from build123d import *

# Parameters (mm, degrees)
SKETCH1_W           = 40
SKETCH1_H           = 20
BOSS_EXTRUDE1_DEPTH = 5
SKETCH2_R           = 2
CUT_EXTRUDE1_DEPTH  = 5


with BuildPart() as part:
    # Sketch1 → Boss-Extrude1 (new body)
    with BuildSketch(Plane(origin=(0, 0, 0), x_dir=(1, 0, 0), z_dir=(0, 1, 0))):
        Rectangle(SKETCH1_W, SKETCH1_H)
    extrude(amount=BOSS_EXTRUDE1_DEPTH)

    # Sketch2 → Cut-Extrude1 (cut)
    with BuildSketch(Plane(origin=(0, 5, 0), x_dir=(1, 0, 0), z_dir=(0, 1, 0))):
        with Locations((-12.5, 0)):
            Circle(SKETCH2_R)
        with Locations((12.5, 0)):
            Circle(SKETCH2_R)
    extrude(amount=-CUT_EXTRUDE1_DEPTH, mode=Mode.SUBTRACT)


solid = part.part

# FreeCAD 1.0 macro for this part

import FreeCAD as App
import Part
import Sketcher

doc = App.newDocument("Part")
body = doc.addObject("PartDesign::Body", "Body")

sketch1 = doc.addObject("Sketcher::SketchObject", "Sketch")
body.addObject(sketch1)
sketch1.AttachmentSupport = (doc.XZ_Plane, [""])
sketch1.MapMode = "FlatFace"
sketch1.addGeometry(Part.LineSegment(App.Vector(-20, -10, 0), App.Vector(-20, 10, 0)), False)
sketch1.addGeometry(Part.LineSegment(App.Vector(-20, 10, 0), App.Vector(20, 10, 0)), False)
sketch1.addGeometry(Part.LineSegment(App.Vector(20, 10, 0), App.Vector(20, -10, 0)), False)
sketch1.addGeometry(Part.LineSegment(App.Vector(20, -10, 0), App.Vector(-20, -10, 0)), False)
sketch1.addConstraint(Sketcher.Constraint("Coincident", 0, 2, 1, 1))
sketch1.addConstraint(Sketcher.Constraint("Coincident", 1, 2, 2, 1))
sketch1.addConstraint(Sketcher.Constraint("Coincident", 2, 2, 3, 1))
sketch1.addConstraint(Sketcher.Constraint("Coincident", 3, 2, 0, 1))
sketch1.addConstraint(Sketcher.Constraint("Vertical", 0))
sketch1.addConstraint(Sketcher.Constraint("Horizontal", 1))
sketch1.addConstraint(Sketcher.Constraint("Vertical", 2))
sketch1.addConstraint(Sketcher.Constraint("Horizontal", 3))
sketch1.addConstraint(Sketcher.Constraint("Symmetric", 0, 2, 2, 2, -1, 1))
sketch1.addConstraint(Sketcher.Constraint("DistanceX", 1, 1, 1, 2, 40.0))
sketch1.addConstraint(Sketcher.Constraint("DistanceY", 0, 1, 0, 2, 20.0))
pad1 = doc.addObject("PartDesign::Pad", "Pad")
body.addObject(pad1)
pad1.Profile = sketch1
pad1.Length = 5
pad1.Reversed = True

sketch2 = doc.addObject("Sketcher::SketchObject", "Sketch001")
body.addObject(sketch2)
sketch2.AttachmentSupport = (doc.XZ_Plane, [""])
sketch2.MapMode = "FlatFace"
sketch2.AttachmentOffset = App.Placement(App.Vector(0, 0, -5), App.Rotation())
sketch2.addGeometry(Part.Circle(App.Vector(-12.5, 0, 0), App.Vector(0, 0, 1), 2), False)
sketch2.addGeometry(Part.Circle(App.Vector(12.5, 0, 0), App.Vector(0, 0, 1), 2), False)
sketch2.addConstraint(Sketcher.Constraint("Equal", 0, 1))
sketch2.addConstraint(Sketcher.Constraint("Symmetric", 0, 3, 1, 3, -1, 1))
sketch2.addConstraint(Sketcher.Constraint("PointOnObject", 0, 3, -1))
sketch2.addConstraint(Sketcher.Constraint("Diameter", 0, 4.0))
sketch2.addConstraint(Sketcher.Constraint("DistanceX", 0, 3, 1, 3, 25.0))
pocket1 = doc.addObject("PartDesign::Pocket", "Pocket")
body.addObject(pocket1)
pocket1.Profile = sketch2
pocket1.Length = 5
pocket1.Reversed = True

doc.recompute()
